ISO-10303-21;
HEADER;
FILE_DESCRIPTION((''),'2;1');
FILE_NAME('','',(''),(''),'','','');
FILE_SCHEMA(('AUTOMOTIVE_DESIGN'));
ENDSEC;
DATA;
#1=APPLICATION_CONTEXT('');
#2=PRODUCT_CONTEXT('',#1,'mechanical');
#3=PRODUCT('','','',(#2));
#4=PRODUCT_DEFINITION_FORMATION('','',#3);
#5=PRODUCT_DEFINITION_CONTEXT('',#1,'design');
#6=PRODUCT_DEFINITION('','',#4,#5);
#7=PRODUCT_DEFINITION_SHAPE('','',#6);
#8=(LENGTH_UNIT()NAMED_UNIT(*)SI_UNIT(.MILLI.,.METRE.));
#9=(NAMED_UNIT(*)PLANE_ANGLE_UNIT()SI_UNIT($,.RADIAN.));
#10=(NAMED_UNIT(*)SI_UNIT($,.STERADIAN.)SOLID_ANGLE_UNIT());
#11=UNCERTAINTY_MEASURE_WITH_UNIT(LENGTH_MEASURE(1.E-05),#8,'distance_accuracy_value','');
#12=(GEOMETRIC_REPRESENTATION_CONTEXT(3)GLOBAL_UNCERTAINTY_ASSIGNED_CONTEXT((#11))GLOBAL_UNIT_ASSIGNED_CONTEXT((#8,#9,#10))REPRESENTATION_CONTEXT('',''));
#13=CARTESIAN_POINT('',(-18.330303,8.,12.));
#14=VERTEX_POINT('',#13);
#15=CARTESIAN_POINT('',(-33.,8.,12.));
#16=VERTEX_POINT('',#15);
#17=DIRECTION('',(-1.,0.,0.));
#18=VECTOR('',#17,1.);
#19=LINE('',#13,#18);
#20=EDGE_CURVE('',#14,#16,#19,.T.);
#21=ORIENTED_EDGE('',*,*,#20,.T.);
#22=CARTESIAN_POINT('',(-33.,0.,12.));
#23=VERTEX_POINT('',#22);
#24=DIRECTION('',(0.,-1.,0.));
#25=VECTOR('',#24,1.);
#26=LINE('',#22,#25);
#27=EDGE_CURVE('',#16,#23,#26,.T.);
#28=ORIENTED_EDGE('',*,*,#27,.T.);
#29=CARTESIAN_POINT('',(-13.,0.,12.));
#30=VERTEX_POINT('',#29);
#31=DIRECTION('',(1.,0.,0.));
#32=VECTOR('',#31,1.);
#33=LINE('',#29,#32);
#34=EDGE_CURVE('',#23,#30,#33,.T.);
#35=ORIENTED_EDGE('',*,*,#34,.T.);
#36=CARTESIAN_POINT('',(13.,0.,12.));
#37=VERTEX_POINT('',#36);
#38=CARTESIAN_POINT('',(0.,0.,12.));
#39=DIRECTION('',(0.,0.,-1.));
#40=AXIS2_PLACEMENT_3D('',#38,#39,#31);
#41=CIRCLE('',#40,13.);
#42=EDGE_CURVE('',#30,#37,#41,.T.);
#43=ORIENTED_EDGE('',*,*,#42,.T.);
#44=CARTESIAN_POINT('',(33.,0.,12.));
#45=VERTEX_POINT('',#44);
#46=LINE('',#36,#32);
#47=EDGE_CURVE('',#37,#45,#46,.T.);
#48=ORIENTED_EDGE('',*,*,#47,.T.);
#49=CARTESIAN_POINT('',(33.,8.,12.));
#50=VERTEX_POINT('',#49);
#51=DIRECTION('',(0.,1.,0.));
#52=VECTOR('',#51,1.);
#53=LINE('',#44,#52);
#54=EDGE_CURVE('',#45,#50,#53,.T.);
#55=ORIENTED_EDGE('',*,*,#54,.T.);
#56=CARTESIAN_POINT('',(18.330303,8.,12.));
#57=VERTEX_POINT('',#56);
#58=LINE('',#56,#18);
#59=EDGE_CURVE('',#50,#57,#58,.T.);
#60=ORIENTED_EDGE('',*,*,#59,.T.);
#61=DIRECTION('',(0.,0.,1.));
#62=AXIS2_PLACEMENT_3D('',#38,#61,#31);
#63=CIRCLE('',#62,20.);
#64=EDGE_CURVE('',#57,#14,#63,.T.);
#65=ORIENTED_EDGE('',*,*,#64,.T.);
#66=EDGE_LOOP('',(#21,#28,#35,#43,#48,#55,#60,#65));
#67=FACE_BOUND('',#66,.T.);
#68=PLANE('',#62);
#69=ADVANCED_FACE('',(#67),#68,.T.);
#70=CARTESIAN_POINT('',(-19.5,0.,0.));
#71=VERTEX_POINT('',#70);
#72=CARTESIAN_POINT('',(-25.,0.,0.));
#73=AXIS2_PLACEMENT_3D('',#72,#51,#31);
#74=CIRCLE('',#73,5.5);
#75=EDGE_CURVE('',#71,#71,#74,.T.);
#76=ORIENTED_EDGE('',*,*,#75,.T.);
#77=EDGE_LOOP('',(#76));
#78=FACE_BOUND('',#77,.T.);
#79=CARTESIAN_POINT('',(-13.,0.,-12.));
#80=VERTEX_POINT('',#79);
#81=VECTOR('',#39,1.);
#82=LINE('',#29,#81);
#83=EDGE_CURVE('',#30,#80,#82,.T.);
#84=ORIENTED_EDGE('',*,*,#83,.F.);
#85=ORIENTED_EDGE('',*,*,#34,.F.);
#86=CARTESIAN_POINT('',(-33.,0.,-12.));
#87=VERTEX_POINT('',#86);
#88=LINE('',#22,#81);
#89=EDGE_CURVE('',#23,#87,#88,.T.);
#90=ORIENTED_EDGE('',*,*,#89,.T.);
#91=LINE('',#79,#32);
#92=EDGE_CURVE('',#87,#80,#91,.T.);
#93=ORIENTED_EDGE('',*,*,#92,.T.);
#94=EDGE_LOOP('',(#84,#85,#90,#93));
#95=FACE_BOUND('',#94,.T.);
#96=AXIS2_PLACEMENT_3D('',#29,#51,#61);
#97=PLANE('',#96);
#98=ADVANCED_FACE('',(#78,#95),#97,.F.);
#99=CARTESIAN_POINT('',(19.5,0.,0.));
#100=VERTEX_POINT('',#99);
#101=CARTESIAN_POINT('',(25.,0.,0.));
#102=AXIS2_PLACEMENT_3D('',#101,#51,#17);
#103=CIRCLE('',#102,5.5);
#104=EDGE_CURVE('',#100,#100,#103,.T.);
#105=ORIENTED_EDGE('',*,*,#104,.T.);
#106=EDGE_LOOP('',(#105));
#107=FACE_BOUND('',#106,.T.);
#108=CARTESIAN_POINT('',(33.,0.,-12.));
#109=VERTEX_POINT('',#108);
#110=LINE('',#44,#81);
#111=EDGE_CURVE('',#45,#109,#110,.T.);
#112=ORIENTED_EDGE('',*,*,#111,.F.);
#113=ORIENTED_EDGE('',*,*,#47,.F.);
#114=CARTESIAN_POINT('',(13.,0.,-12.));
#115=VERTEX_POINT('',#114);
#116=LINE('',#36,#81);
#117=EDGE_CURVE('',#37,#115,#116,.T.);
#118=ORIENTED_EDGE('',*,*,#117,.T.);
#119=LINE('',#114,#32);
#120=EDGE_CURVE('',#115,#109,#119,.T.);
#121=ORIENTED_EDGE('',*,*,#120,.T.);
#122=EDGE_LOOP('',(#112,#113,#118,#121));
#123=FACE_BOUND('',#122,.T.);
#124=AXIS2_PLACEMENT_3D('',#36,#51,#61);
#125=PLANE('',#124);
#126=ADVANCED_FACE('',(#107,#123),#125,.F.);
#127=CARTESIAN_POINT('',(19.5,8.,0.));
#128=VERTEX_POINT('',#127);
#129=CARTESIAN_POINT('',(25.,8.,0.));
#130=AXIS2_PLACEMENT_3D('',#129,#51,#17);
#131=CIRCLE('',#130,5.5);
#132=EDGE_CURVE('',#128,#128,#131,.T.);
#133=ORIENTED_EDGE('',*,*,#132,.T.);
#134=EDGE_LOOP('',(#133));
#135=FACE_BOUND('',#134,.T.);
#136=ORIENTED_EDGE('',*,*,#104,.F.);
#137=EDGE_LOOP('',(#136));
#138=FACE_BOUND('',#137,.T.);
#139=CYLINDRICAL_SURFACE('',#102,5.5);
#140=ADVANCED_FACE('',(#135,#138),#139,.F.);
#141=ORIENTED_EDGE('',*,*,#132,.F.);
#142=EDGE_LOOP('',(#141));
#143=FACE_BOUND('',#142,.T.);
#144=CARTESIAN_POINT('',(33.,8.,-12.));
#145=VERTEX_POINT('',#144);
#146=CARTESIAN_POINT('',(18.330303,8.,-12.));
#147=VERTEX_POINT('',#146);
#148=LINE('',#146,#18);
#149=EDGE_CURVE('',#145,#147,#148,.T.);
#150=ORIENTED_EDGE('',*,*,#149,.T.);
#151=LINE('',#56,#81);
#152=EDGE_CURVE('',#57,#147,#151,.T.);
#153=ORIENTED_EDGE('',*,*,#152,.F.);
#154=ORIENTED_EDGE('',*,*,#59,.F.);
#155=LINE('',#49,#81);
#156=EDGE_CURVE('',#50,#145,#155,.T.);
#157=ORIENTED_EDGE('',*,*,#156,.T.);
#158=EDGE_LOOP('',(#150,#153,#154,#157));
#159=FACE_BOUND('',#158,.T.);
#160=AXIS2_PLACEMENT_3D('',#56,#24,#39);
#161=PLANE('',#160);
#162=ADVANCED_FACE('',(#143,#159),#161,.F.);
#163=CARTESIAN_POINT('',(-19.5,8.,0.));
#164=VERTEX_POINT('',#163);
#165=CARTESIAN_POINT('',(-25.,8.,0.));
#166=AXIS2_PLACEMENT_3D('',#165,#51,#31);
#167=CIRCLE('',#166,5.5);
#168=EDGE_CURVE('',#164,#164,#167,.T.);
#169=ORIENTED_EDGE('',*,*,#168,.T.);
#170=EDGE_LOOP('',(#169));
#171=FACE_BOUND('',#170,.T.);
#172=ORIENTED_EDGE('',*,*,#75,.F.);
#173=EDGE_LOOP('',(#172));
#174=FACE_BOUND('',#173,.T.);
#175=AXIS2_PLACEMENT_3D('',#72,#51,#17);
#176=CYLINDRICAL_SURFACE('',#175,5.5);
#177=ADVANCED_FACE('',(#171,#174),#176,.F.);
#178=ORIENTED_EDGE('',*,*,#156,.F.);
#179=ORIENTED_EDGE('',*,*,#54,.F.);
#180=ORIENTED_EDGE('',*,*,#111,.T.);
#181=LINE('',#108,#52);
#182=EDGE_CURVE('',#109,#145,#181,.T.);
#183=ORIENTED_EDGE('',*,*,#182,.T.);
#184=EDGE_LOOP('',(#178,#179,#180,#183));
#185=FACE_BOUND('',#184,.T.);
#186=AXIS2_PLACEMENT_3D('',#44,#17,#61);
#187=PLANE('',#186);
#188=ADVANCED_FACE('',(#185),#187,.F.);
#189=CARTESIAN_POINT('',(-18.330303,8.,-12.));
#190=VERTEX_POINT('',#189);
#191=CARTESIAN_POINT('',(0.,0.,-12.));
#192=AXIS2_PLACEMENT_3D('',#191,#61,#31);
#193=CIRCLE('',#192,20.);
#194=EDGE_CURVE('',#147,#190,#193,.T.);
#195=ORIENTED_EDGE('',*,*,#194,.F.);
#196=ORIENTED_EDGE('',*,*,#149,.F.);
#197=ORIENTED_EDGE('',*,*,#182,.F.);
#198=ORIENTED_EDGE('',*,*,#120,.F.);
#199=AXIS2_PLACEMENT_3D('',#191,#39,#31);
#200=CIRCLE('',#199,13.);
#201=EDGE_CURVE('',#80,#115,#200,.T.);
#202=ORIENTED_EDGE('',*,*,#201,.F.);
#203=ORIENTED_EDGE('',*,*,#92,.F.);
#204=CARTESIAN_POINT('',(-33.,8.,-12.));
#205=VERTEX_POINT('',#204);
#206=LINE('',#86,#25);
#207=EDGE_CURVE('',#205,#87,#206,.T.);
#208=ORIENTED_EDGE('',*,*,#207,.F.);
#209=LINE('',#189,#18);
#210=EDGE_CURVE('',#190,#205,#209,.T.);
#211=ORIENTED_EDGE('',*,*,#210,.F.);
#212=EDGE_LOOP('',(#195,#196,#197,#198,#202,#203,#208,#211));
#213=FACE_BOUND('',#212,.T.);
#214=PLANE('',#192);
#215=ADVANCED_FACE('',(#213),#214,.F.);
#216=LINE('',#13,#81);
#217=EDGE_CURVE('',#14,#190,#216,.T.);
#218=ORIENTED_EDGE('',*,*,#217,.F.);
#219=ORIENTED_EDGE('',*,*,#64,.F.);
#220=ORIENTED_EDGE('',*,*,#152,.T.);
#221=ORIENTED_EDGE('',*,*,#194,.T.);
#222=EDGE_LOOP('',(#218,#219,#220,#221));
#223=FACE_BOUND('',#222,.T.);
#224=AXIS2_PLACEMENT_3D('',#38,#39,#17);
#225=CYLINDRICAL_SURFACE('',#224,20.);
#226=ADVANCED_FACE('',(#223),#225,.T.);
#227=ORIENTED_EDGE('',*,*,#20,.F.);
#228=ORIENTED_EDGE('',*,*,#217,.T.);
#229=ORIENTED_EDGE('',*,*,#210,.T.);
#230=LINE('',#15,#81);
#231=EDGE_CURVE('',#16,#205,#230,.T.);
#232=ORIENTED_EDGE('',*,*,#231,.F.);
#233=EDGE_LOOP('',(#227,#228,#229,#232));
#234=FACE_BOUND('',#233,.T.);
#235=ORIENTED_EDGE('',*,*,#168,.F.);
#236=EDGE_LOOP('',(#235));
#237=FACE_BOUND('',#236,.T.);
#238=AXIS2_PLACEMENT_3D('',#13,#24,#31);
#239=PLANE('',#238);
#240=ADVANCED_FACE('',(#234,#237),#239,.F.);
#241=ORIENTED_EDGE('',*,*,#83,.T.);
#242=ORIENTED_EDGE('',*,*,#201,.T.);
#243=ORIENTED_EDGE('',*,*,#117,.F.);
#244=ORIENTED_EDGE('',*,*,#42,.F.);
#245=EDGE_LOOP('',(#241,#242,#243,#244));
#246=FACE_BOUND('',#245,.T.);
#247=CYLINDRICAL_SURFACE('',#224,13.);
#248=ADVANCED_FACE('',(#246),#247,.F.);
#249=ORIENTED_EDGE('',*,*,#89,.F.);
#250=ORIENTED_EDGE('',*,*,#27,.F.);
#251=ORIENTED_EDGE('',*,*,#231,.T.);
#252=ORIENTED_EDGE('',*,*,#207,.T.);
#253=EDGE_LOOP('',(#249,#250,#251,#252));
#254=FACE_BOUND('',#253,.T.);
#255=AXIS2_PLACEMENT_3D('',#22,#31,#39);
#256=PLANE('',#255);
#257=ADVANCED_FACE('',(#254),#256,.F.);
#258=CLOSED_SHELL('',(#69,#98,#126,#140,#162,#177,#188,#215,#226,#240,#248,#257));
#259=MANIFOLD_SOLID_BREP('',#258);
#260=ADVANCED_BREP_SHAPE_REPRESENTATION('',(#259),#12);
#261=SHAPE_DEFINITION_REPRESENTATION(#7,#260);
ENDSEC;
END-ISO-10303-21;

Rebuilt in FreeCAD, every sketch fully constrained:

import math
import FreeCAD as App
import Part
import Sketcher

doc = App.newDocument("Part")
params = doc.addObject("Spreadsheet::Sheet", "Params")
for row, (alias, value) in enumerate([
    ("sketch1_radius", "13 mm"),
    ("sketch1_radius2", "20 mm"),
    ("sketch1_width", "20 mm"),
    ("sketch1_height", "8 mm"),
    ("pad1_length", "24 mm"),
    ("sketch2_diameter", "11 mm"),
], start=1):
    params.set(f"A{row}", alias)
    params.set(f"B{row}", "=" + value)
    params.setAlias(f"B{row}", alias)

body = doc.addObject("PartDesign::Body", "Body")

# Sketch on XY plane
sketch1 = doc.addObject("Sketcher::SketchObject", "Sketch")
body.addObject(sketch1)
sketch1.AttachmentSupport = (doc.XY_Plane, [""])
sketch1.MapMode = "FlatFace"
sketch1.addGeometry([
    Part.LineSegment(App.Vector(-33, 8, 0), App.Vector(-33, 0, 0)),  # 0
    Part.LineSegment(App.Vector(-33, 0, 0), App.Vector(-13, 0, 0)),  # 1
    Part.ArcOfCircle(Part.Circle(App.Vector(0, 0, 0), App.Vector(0, 0, 1), 13), math.radians(0), math.radians(180)),  # 2
    Part.LineSegment(App.Vector(13, 0, 0), App.Vector(33, 0, 0)),  # 3
    Part.LineSegment(App.Vector(33, 0, 0), App.Vector(33, 8, 0)),  # 4
    Part.LineSegment(App.Vector(33, 8, 0), App.Vector(18, 8, 0)),  # 5
    Part.ArcOfCircle(Part.Circle(App.Vector(0, 0, 0), App.Vector(0, 0, 1), 20), math.radians(24), math.radians(156)),  # 6
    Part.LineSegment(App.Vector(-18, 8, 0), App.Vector(-33, 8, 0)),  # 7
], False)
sketch1.addConstraint([
    Sketcher.Constraint("Coincident", 0, 2, 1, 1),
    Sketcher.Constraint("Coincident", 1, 2, 2, 2),
    Sketcher.Constraint("Coincident", 2, 1, 3, 1),
    Sketcher.Constraint("Coincident", 3, 2, 4, 1),
    Sketcher.Constraint("Coincident", 4, 2, 5, 1),
    Sketcher.Constraint("Coincident", 5, 2, 6, 1),
    Sketcher.Constraint("Coincident", 6, 2, 7, 1),
    Sketcher.Constraint("Coincident", 7, 2, 0, 1),
    Sketcher.Constraint("Vertical", 0),
    Sketcher.Constraint("Horizontal", 1),
    Sketcher.Constraint("Horizontal", 3),
    Sketcher.Constraint("Vertical", 4),
    Sketcher.Constraint("Horizontal", 5),
    Sketcher.Constraint("Horizontal", 7),
    Sketcher.Constraint("Coincident", 2, 3, -1, 1),
    Sketcher.Constraint("Coincident", 6, 3, -1, 1),
    Sketcher.Constraint("Symmetric", 0, 2, 3, 2, -1, 1),
    Sketcher.Constraint("PointOnObject", 0, 2, -1),
    Sketcher.Constraint("Horizontal", 5, 2, 6, 2),
    Sketcher.Constraint("Radius", 2, 13.0),
    Sketcher.Constraint("Radius", 6, 20.0),
    Sketcher.Constraint("DistanceX", 1, 1, 1, 2, 20.0),
    Sketcher.Constraint("DistanceY", 0, 2, 0, 1, 8.0),
])
sketch1.setExpression("Constraints[19]", "Params.sketch1_radius")
sketch1.setExpression("Constraints[20]", "Params.sketch1_radius2")
sketch1.setExpression("Constraints[21]", "Params.sketch1_width")
sketch1.setExpression("Constraints[22]", "Params.sketch1_height")
pad1 = doc.addObject("PartDesign::Pad", "Pad")
body.addObject(pad1)
pad1.Profile = sketch1
pad1.setExpression("Length", "Params.pad1_length")
pad1.Midplane = True

# Sketch on XZ plane
sketch2 = doc.addObject("Sketcher::SketchObject", "Sketch001")
body.addObject(sketch2)
sketch2.AttachmentSupport = (doc.XZ_Plane, [""])
sketch2.MapMode = "FlatFace"
sketch2.AttachmentOffset = App.Placement(App.Vector(0, 0, -8), App.Rotation())
sketch2.addGeometry([
    Part.Circle(App.Vector(25, 0, 0), App.Vector(0, 0, 1), 6),
    Part.Circle(App.Vector(-25, 0, 0), App.Vector(0, 0, 1), 6),
], False)
sketch2.addConstraint([
    Sketcher.Constraint("Equal", 0, 1),
    Sketcher.Constraint("Symmetric", 0, 3, 1, 3, -1, 1),
    Sketcher.Constraint("PointOnObject", 0, 3, -1),
    Sketcher.Constraint("Diameter", 0, 11.0),
    Sketcher.Constraint("DistanceX", -1, 1, 0, 3, 25.0),
])
sketch2.setExpression("Constraints[3]", "Params.sketch2_diameter")
pocket1 = doc.addObject("PartDesign::Pocket", "Pocket")
body.addObject(pocket1)
pocket1.Profile = sketch2
pocket1.Type = "ThroughAll"
pocket1.Reversed = True

doc.recompute()
